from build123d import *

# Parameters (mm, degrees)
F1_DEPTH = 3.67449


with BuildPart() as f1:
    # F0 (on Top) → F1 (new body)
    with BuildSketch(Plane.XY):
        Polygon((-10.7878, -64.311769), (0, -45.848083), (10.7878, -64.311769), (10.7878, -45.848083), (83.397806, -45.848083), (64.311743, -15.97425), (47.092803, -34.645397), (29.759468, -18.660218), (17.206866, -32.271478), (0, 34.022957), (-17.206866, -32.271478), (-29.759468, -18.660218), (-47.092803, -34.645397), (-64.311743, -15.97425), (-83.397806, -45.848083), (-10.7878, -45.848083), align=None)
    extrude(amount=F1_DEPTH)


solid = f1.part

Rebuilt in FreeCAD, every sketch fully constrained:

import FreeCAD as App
import Part
import Sketcher


def add_polygon(sketch, points):
    """Adds a closed chain of lines whose ends are joined by coincident constraints."""
    first, n = sketch.GeometryCount, len(points)
    for a, b in zip(points, points[1:] + points[:1]):
        sketch.addGeometry(Part.LineSegment(App.Vector(*a, 0), App.Vector(*b, 0)), False)
    for i in range(n):
        sketch.addConstraint(Sketcher.Constraint("Coincident", first + i, 2, first + (i + 1) % n, 1))

doc = App.newDocument("Part")
body = doc.addObject("PartDesign::Body", "Body")

sketch1 = body.newObject("Sketcher::SketchObject", "Sketch")
sketch1.AttachmentSupport = (doc.getObject("XY_Plane"), [""])
sketch1.MapMode = "FlatFace"
add_polygon(sketch1, [(-11, -64), (0, -46), (11, -64), (11, -46), (83, -46), (64, -16), (47, -35), (30, -19), (17, -32), (0, 34), (-17, -32), (-30, -19), (-47, -35), (-64, -16), (-83, -46), (-11, -46)])
sketch1.addConstraint([
    Sketcher.Constraint("Vertical", 2),
    Sketcher.Constraint("Horizontal", 3),
    Sketcher.Constraint("Horizontal", 14),
    Sketcher.Constraint("Vertical", 15),
    Sketcher.Constraint("Symmetric", 7, 2, 9, 2, -2),
    Sketcher.Constraint("Symmetric", 6, 2, 10, 2, -2),
    Sketcher.Constraint("Symmetric", 5, 2, 11, 2, -2),
    Sketcher.Constraint("Symmetric", 4, 2, 12, 2, -2),
    Sketcher.Constraint("Symmetric", 3, 2, 13, 2, -2),
    Sketcher.Constraint("Symmetric", 1, 2, 15, 2, -2),
    Sketcher.Constraint("PointOnObject", 0, 2, -2),
    Sketcher.Constraint("PointOnObject", 8, 2, -2),
    Sketcher.Constraint("Perpendicular", 5, 6),
    Sketcher.Constraint("Perpendicular", 6, 7),
    Sketcher.Constraint("Horizontal", 0, 2, 2, 2),
    Sketcher.Constraint("Distance", 4, 35.450299),
    Sketcher.Constraint("DistanceX", -1, 1, 1, 2, 10.7878),
    Sketcher.Constraint("DistanceX", 7, 2, 6, 2, 12.552602),
    Sketcher.Constraint("Distance", 5, 25.39889),
    Sketcher.Constraint("DistanceX", 3, 1, 3, 2, 72.610006),
    Sketcher.Constraint("DistanceY", 2, 1, 2, 2, 18.463686),
    Sketcher.Constraint("DistanceY", 1, 2, -1, 1, 64.311769),
    Sketcher.Constraint("DistanceY", 4, 2, -1, 1, 15.97425),
    Sketcher.Constraint("DistanceY", 6, 2, -1, 1, 18.660218),
    Sketcher.Constraint("DistanceY", 7, 2, -1, 1, 32.271478),
    Sketcher.Constraint("DistanceY", 0, 2, 8, 2, 79.87104),
])
pad1 = body.newObject("PartDesign::Pad", "Pad")
pad1.Profile = sketch1
pad1.Length = 3.67449

doc.recompute()
